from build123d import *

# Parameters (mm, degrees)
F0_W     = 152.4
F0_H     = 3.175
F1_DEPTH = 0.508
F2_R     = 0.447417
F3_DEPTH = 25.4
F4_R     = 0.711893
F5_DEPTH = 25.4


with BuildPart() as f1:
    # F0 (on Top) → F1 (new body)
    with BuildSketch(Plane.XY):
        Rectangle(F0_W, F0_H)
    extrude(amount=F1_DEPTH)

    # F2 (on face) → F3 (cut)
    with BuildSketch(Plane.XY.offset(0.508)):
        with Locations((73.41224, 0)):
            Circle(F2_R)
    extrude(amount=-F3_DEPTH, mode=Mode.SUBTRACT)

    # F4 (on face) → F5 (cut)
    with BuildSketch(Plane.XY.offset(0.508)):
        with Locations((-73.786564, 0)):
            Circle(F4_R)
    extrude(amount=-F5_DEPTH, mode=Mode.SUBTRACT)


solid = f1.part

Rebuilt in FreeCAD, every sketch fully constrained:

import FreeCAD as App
import Part
import Sketcher
from FreeCAD import Vector
Q = App.Units.Quantity

doc = App.newDocument("Part")
body = doc.addObject("PartDesign::Body", "Body")

# Sketch on XY plane
sketch1 = doc.addObject("Sketcher::SketchObject", "Sketch")
body.addObject(sketch1)
sketch1.AttachmentSupport = (doc.XY_Plane, [""])
sketch1.MapMode = "FlatFace"
sketch1.addGeometry([
    Part.LineSegment(Vector(-76.2, 1.6, 0), Vector(-76.2, -1.6, 0)),
    Part.LineSegment(Vector(-76.2, -1.6, 0), Vector(76.2, -1.6, 0)),
    Part.LineSegment(Vector(76.2, -1.6, 0), Vector(76.2, 1.6, 0)),
    Part.LineSegment(Vector(76.2, 1.6, 0), Vector(-76.2, 1.6, 0)),
], False)
sketch1.addConstraint([
    Sketcher.Constraint("Coincident", 0, 2, 1, 1),
    Sketcher.Constraint("Coincident", 1, 2, 2, 1),
    Sketcher.Constraint("Coincident", 2, 2, 3, 1),
    Sketcher.Constraint("Coincident", 3, 2, 0, 1),
    Sketcher.Constraint("Vertical", 0),
    Sketcher.Constraint("Horizontal", 1),
    Sketcher.Constraint("Vertical", 2),
    Sketcher.Constraint("Horizontal", 3),
    Sketcher.Constraint("Symmetric", 0, 2, 2, 2, -1, 1),
    Sketcher.Constraint("DistanceX", 1, 1, 1, 2, Q("6 in")),
    Sketcher.Constraint("DistanceY", 0, 2, 0, 1, Q("0.125 in")),
])
pad1 = doc.addObject("PartDesign::Pad", "Pad")
body.addObject(pad1)
pad1.Profile = sketch1
pad1.Length = Q("0.02 in")

# Sketch on XY plane
sketch2 = doc.addObject("Sketcher::SketchObject", "Sketch001")
body.addObject(sketch2)
sketch2.AttachmentSupport = (doc.XY_Plane, [""])
sketch2.MapMode = "FlatFace"
sketch2.AttachmentOffset = App.Placement(Vector(0, 0, 0.02 * 25.4), App.Rotation())
sketch2.addGeometry(Part.Circle(Vector(73.41, 0, 0), Vector(0, 0, 1), 0.45), False)
sketch2.addConstraint([
    Sketcher.Constraint("PointOnObject", 0, 3, -1),
    Sketcher.Constraint("Diameter", 0, Q("0.894834 mm")),
    Sketcher.Constraint("DistanceX", -1, 1, 0, 3, Q("73.41224 mm")),
])
pocket1 = doc.addObject("PartDesign::Pocket", "Pocket")
body.addObject(pocket1)
pocket1.Profile = sketch2
pocket1.Length = Q("1 in")

# Sketch on XY plane
sketch3 = doc.addObject("Sketcher::SketchObject", "Sketch002")
body.addObject(sketch3)
sketch3.AttachmentSupport = (doc.XY_Plane, [""])
sketch3.MapMode = "FlatFace"
sketch3.AttachmentOffset = App.Placement(Vector(0, 0, 0.02 * 25.4), App.Rotation())
sketch3.addGeometry(Part.Circle(Vector(-73.8, 0, 0), Vector(0, 0, 1), 0.7), False)
sketch3.addConstraint([
    Sketcher.Constraint("PointOnObject", 0, 3, -1),
    Sketcher.Constraint("Diameter", 0, Q("1.423786 mm")),
    Sketcher.Constraint("DistanceX", 0, 3, -1, 1, Q("73.786564 mm")),
])
pocket2 = doc.addObject("PartDesign::Pocket", "Pocket001")
body.addObject(pocket2)
pocket2.Profile = sketch3
pocket2.Length = Q("1 in")

doc.recompute()
